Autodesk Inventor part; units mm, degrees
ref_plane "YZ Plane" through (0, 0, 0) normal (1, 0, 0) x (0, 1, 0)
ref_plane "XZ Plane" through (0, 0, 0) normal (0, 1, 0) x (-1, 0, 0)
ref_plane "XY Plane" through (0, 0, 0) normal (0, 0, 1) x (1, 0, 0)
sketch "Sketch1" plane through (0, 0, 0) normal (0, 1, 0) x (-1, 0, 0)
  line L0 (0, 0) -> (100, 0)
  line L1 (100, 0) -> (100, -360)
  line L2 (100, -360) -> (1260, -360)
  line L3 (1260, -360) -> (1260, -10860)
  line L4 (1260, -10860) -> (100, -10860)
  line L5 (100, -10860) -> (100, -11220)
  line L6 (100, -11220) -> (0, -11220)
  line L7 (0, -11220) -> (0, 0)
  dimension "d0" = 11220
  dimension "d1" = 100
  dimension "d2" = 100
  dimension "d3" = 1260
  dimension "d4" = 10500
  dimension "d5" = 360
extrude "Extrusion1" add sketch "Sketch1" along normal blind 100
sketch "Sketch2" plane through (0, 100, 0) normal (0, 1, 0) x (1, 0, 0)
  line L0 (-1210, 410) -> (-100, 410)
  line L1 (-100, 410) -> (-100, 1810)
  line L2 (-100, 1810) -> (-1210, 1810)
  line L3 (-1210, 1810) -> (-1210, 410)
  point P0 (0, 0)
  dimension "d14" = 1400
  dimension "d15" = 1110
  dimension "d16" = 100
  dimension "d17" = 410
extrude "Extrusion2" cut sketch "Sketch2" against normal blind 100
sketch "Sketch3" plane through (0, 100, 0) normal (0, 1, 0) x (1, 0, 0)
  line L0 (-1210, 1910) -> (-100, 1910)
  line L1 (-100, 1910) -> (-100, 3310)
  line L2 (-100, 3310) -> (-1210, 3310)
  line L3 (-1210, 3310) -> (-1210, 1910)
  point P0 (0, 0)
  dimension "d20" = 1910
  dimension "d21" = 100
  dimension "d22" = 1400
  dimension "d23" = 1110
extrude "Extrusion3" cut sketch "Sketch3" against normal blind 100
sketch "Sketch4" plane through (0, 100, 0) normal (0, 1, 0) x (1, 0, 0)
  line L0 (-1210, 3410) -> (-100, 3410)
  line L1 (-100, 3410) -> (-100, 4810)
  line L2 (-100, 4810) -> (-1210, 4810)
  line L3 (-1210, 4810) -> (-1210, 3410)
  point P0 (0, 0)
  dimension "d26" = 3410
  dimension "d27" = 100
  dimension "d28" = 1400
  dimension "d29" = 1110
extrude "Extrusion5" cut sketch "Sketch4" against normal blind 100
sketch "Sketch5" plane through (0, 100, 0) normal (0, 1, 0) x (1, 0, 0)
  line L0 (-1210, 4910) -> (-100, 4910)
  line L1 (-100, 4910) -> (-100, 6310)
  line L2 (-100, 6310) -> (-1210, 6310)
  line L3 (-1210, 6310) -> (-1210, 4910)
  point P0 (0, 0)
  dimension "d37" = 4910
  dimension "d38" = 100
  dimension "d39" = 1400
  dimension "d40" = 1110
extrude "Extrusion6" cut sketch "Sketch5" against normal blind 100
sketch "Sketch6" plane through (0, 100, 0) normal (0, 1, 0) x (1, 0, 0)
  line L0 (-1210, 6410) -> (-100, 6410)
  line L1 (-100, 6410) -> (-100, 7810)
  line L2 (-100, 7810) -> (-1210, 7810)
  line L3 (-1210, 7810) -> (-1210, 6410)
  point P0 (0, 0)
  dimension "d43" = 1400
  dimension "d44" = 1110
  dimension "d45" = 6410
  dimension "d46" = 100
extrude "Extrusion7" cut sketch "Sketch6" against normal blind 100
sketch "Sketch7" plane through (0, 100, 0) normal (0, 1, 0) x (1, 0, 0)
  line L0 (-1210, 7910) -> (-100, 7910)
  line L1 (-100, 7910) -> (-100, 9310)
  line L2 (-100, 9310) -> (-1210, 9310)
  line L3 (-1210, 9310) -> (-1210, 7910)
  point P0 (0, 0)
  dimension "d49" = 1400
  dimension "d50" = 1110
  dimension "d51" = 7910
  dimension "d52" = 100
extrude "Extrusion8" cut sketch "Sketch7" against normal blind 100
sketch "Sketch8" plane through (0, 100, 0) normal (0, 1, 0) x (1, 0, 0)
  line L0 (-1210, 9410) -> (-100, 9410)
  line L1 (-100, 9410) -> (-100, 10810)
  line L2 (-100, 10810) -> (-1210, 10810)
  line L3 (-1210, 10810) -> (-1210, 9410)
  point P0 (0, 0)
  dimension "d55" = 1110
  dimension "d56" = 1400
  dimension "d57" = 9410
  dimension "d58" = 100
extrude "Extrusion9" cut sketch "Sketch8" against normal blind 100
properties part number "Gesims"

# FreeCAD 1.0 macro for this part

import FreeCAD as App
import Part
import Sketcher
Q = App.Units.Quantity

doc = App.newDocument("Part")
params = doc.addObject("Spreadsheet::Sheet", "Params")
for row, (alias, value) in enumerate([
    ("sketch1_width", "100 mm"),
    ("sketch1_height", "11220 mm"),
    ("sketch1_height2", "360 mm"),
    ("pad1_length", "100 mm"),
    ("sketch2_width", "1110 mm"),
    ("sketch2_height", "1400 mm"),
    ("pocket1_length", "100 mm"),
    ("sketch3_width", "1110 mm"),
    ("sketch3_height", "1400 mm"),
    ("pocket2_length", "100 mm"),
    ("sketch4_width", "1110 mm"),
    ("sketch4_height", "1400 mm"),
    ("pocket3_length", "100 mm"),
    ("sketch5_width", "1110 mm"),
    ("sketch5_height", "1400 mm"),
    ("pocket4_length", "100 mm"),
    ("sketch6_width", "1110 mm"),
    ("sketch6_height", "1400 mm"),
    ("pocket5_length", "100 mm"),
    ("sketch7_width", "1110 mm"),
    ("sketch7_height", "1400 mm"),
    ("pocket6_length", "100 mm"),
    ("sketch8_width", "1110 mm"),
    ("sketch8_height", "1400 mm"),
    ("pocket7_length", "100 mm"),
], start=1):
    params.set(f"A{row}", alias)
    params.set(f"B{row}", "=" + value)
    params.setAlias(f"B{row}", alias)

body = doc.addObject("PartDesign::Body", "Body")

sketch1 = body.newObject("Sketcher::SketchObject", "Sketch")
sketch1.AttachmentSupport = (doc.getObject("XZ_Plane"), [""])
sketch1.MapMode = "FlatFace"
sketch1.addGeometry([
    Part.LineSegment(App.Vector(-100, 0, 0), App.Vector(0, 0, 0)),
    Part.LineSegment(App.Vector(0, 0, 0), App.Vector(0, -11220, 0)),
    Part.LineSegment(App.Vector(0, -11220, 0), App.Vector(-100, -11220, 0)),
    Part.LineSegment(App.Vector(-100, -11220, 0), App.Vector(-100, -10860, 0)),
    Part.LineSegment(App.Vector(-100, -10860, 0), App.Vector(-1260, -10860, 0)),
    Part.LineSegment(App.Vector(-1260, -10860, 0), App.Vector(-1260, -360, 0)),
    Part.LineSegment(App.Vector(-1260, -360, 0), App.Vector(-100, -360, 0)),
    Part.LineSegment(App.Vector(-100, -360, 0), App.Vector(-100, 0, 0)),
], False)
sketch1.addConstraint([
    Sketcher.Constraint("Coincident", 0, 2, 1, 1),
    Sketcher.Constraint("Coincident", 1, 2, 2, 1),
    Sketcher.Constraint("Coincident", 2, 2, 3, 1),
    Sketcher.Constraint("Coincident", 3, 2, 4, 1),
    Sketcher.Constraint("Coincident", 4, 2, 5, 1),
    Sketcher.Constraint("Coincident", 5, 2, 6, 1),
    Sketcher.Constraint("Coincident", 6, 2, 7, 1),
    Sketcher.Constraint("Coincident", 7, 2, 0, 1),
    Sketcher.Constraint("Horizontal", 0),
    Sketcher.Constraint("Vertical", 1),
    Sketcher.Constraint("Horizontal", 2),
    Sketcher.Constraint("Vertical", 3),
    Sketcher.Constraint("Horizontal", 4),
    Sketcher.Constraint("Vertical", 5),
    Sketcher.Constraint("Horizontal", 6),
    Sketcher.Constraint("Vertical", 7),
    Sketcher.Constraint("Coincident", 0, 2, -1, 1),
    Sketcher.Constraint("Vertical", 3, 2, 6, 2),
    Sketcher.Constraint("Equal", 3, 7),
    Sketcher.Constraint("DistanceX", 0, 1, 0, 2, Q("100 mm")),
    Sketcher.Constraint("DistanceY", 1, 2, 1, 1, Q("11220 mm")),
    Sketcher.Constraint("DistanceY", 3, 1, 3, 2, Q("360 mm")),
    Sketcher.Constraint("DistanceX", 4, 2, -1, 1, Q("1260 mm")),
])
sketch1.setExpression("Constraints[19]", "Params.sketch1_width")
sketch1.setExpression("Constraints[20]", "Params.sketch1_height")
sketch1.setExpression("Constraints[21]", "Params.sketch1_height2")
pad1 = body.newObject("PartDesign::Pad", "Pad")
pad1.Profile = sketch1
pad1.setExpression("Length", "Params.pad1_length")
pad1.Reversed = True

sketch2 = body.newObject("Sketcher::SketchObject", "Sketch001")
sketch2.AttachmentSupport = (doc.getObject("XZ_Plane"), [""])
sketch2.MapMode = "FlatFace"
sketch2.AttachmentOffset = App.Placement(App.Vector(0, 0, -100), App.Rotation())
sketch2.addGeometry([
    Part.LineSegment(App.Vector(-1210, -1810, 0), App.Vector(-1210, -410, 0)),
    Part.LineSegment(App.Vector(-1210, -410, 0), App.Vector(-100, -410, 0)),
    Part.LineSegment(App.Vector(-100, -410, 0), App.Vector(-100, -1810, 0)),
    Part.LineSegment(App.Vector(-100, -1810, 0), App.Vector(-1210, -1810, 0)),
], False)
sketch2.addConstraint([
    Sketcher.Constraint("Coincident", 0, 2, 1, 1),
    Sketcher.Constraint("Coincident", 1, 2, 2, 1),
    Sketcher.Constraint("Coincident", 2, 2, 3, 1),
    Sketcher.Constraint("Coincident", 3, 2, 0, 1),
    Sketcher.Constraint("Vertical", 0),
    Sketcher.Constraint("Horizontal", 1),
    Sketcher.Constraint("Vertical", 2),
    Sketcher.Constraint("Horizontal", 3),
    Sketcher.Constraint("DistanceX", 1, 1, 1, 2, Q("1110 mm")),
    Sketcher.Constraint("DistanceY", 0, 1, 0, 2, Q("1400 mm")),
    Sketcher.Constraint("DistanceY", 0, 2, -1, 1, Q("410 mm")),
    Sketcher.Constraint("DistanceX", 1, 2, -1, 1, Q("100 mm")),
])
sketch2.setExpression("Constraints[8]", "Params.sketch2_width")
sketch2.setExpression("Constraints[9]", "Params.sketch2_height")
pocket1 = body.newObject("PartDesign::Pocket", "Pocket")
pocket1.Profile = sketch2
pocket1.setExpression("Length", "Params.pocket1_length")
pocket1.Reversed = True

sketch3 = body.newObject("Sketcher::SketchObject", "Sketch002")
sketch3.AttachmentSupport = (doc.getObject("XZ_Plane"), [""])
sketch3.MapMode = "FlatFace"
sketch3.AttachmentOffset = App.Placement(App.Vector(0, 0, -100), App.Rotation())
sketch3.addGeometry([
    Part.LineSegment(App.Vector(-1210, -3310, 0), App.Vector(-1210, -1910, 0)),
    Part.LineSegment(App.Vector(-1210, -1910, 0), App.Vector(-100, -1910, 0)),
    Part.LineSegment(App.Vector(-100, -1910, 0), App.Vector(-100, -3310, 0)),
    Part.LineSegment(App.Vector(-100, -3310, 0), App.Vector(-1210, -3310, 0)),
], False)
sketch3.addConstraint([
    Sketcher.Constraint("Coincident", 0, 2, 1, 1),
    Sketcher.Constraint("Coincident", 1, 2, 2, 1),
    Sketcher.Constraint("Coincident", 2, 2, 3, 1),
    Sketcher.Constraint("Coincident", 3, 2, 0, 1),
    Sketcher.Constraint("Vertical", 0),
    Sketcher.Constraint("Horizontal", 1),
    Sketcher.Constraint("Vertical", 2),
    Sketcher.Constraint("Horizontal", 3),
    Sketcher.Constraint("DistanceX", 1, 1, 1, 2, Q("1110 mm")),
    Sketcher.Constraint("DistanceY", 0, 1, 0, 2, Q("1400 mm")),
    Sketcher.Constraint("DistanceY", 0, 2, -1, 1, Q("1910 mm")),
    Sketcher.Constraint("DistanceX", 1, 2, -1, 1, Q("100 mm")),
])
sketch3.setExpression("Constraints[8]", "Params.sketch3_width")
sketch3.setExpression("Constraints[9]", "Params.sketch3_height")
pocket2 = body.newObject("PartDesign::Pocket", "Pocket001")
pocket2.Profile = sketch3
pocket2.setExpression("Length", "Params.pocket2_length")
pocket2.Reversed = True

sketch4 = body.newObject("Sketcher::SketchObject", "Sketch003")
sketch4.AttachmentSupport = (doc.getObject("XZ_Plane"), [""])
sketch4.MapMode = "FlatFace"
sketch4.AttachmentOffset = App.Placement(App.Vector(0, 0, -100), App.Rotation())
sketch4.addGeometry([
    Part.LineSegment(App.Vector(-1210, -4810, 0), App.Vector(-1210, -3410, 0)),
    Part.LineSegment(App.Vector(-1210, -3410, 0), App.Vector(-100, -3410, 0)),
    Part.LineSegment(App.Vector(-100, -3410, 0), App.Vector(-100, -4810, 0)),
    Part.LineSegment(App.Vector(-100, -4810, 0), App.Vector(-1210, -4810, 0)),
], False)
sketch4.addConstraint([
    Sketcher.Constraint("Coincident", 0, 2, 1, 1),
    Sketcher.Constraint("Coincident", 1, 2, 2, 1),
    Sketcher.Constraint("Coincident", 2, 2, 3, 1),
    Sketcher.Constraint("Coincident", 3, 2, 0, 1),
    Sketcher.Constraint("Vertical", 0),
    Sketcher.Constraint("Horizontal", 1),
    Sketcher.Constraint("Vertical", 2),
    Sketcher.Constraint("Horizontal", 3),
    Sketcher.Constraint("DistanceX", 1, 1, 1, 2, Q("1110 mm")),
    Sketcher.Constraint("DistanceY", 0, 1, 0, 2, Q("1400 mm")),
    Sketcher.Constraint("DistanceY", 0, 2, -1, 1, Q("3410 mm")),
    Sketcher.Constraint("DistanceX", 1, 2, -1, 1, Q("100 mm")),
])
sketch4.setExpression("Constraints[8]", "Params.sketch4_width")
sketch4.setExpression("Constraints[9]", "Params.sketch4_height")
pocket3 = body.newObject("PartDesign::Pocket", "Pocket002")
pocket3.Profile = sketch4
pocket3.setExpression("Length", "Params.pocket3_length")
pocket3.Reversed = True

sketch5 = body.newObject("Sketcher::SketchObject", "Sketch004")
sketch5.AttachmentSupport = (doc.getObject("XZ_Plane"), [""])
sketch5.MapMode = "FlatFace"
sketch5.AttachmentOffset = App.Placement(App.Vector(0, 0, -100), App.Rotation())
sketch5.addGeometry([
    Part.LineSegment(App.Vector(-1210, -6310, 0), App.Vector(-1210, -4910, 0)),
    Part.LineSegment(App.Vector(-1210, -4910, 0), App.Vector(-100, -4910, 0)),
    Part.LineSegment(App.Vector(-100, -4910, 0), App.Vector(-100, -6310, 0)),
    Part.LineSegment(App.Vector(-100, -6310, 0), App.Vector(-1210, -6310, 0)),
], False)
sketch5.addConstraint([
    Sketcher.Constraint("Coincident", 0, 2, 1, 1),
    Sketcher.Constraint("Coincident", 1, 2, 2, 1),
    Sketcher.Constraint("Coincident", 2, 2, 3, 1),
    Sketcher.Constraint("Coincident", 3, 2, 0, 1),
    Sketcher.Constraint("Vertical", 0),
    Sketcher.Constraint("Horizontal", 1),
    Sketcher.Constraint("Vertical", 2),
    Sketcher.Constraint("Horizontal", 3),
    Sketcher.Constraint("DistanceX", 1, 1, 1, 2, Q("1110 mm")),
    Sketcher.Constraint("DistanceY", 0, 1, 0, 2, Q("1400 mm")),
    Sketcher.Constraint("DistanceY", 0, 2, -1, 1, Q("4910 mm")),
    Sketcher.Constraint("DistanceX", 1, 2, -1, 1, Q("100 mm")),
])
sketch5.setExpression("Constraints[8]", "Params.sketch5_width")
sketch5.setExpression("Constraints[9]", "Params.sketch5_height")
pocket4 = body.newObject("PartDesign::Pocket", "Pocket003")
pocket4.Profile = sketch5
pocket4.setExpression("Length", "Params.pocket4_length")
pocket4.Reversed = True

sketch6 = body.newObject("Sketcher::SketchObject", "Sketch005")
sketch6.AttachmentSupport = (doc.getObject("XZ_Plane"), [""])
sketch6.MapMode = "FlatFace"
sketch6.AttachmentOffset = App.Placement(App.Vector(0, 0, -100), App.Rotation())
sketch6.addGeometry([
    Part.LineSegment(App.Vector(-1210, -7810, 0), App.Vector(-1210, -6410, 0)),
    Part.LineSegment(App.Vector(-1210, -6410, 0), App.Vector(-100, -6410, 0)),
    Part.LineSegment(App.Vector(-100, -6410, 0), App.Vector(-100, -7810, 0)),
    Part.LineSegment(App.Vector(-100, -7810, 0), App.Vector(-1210, -7810, 0)),
], False)
sketch6.addConstraint([
    Sketcher.Constraint("Coincident", 0, 2, 1, 1),
    Sketcher.Constraint("Coincident", 1, 2, 2, 1),
    Sketcher.Constraint("Coincident", 2, 2, 3, 1),
    Sketcher.Constraint("Coincident", 3, 2, 0, 1),
    Sketcher.Constraint("Vertical", 0),
    Sketcher.Constraint("Horizontal", 1),
    Sketcher.Constraint("Vertical", 2),
    Sketcher.Constraint("Horizontal", 3),
    Sketcher.Constraint("DistanceX", 1, 1, 1, 2, Q("1110 mm")),
    Sketcher.Constraint("DistanceY", 0, 1, 0, 2, Q("1400 mm")),
    Sketcher.Constraint("DistanceY", 0, 2, -1, 1, Q("6410 mm")),
    Sketcher.Constraint("DistanceX", 1, 2, -1, 1, Q("100 mm")),
])
sketch6.setExpression("Constraints[8]", "Params.sketch6_width")
sketch6.setExpression("Constraints[9]", "Params.sketch6_height")
pocket5 = body.newObject("PartDesign::Pocket", "Pocket004")
pocket5.Profile = sketch6
pocket5.setExpression("Length", "Params.pocket5_length")
pocket5.Reversed = True

sketch7 = body.newObject("Sketcher::SketchObject", "Sketch006")
sketch7.AttachmentSupport = (doc.getObject("XZ_Plane"), [""])
sketch7.MapMode = "FlatFace"
sketch7.AttachmentOffset = App.Placement(App.Vector(0, 0, -100), App.Rotation())
sketch7.addGeometry([
    Part.LineSegment(App.Vector(-1210, -9310, 0), App.Vector(-1210, -7910, 0)),
    Part.LineSegment(App.Vector(-1210, -7910, 0), App.Vector(-100, -7910, 0)),
    Part.LineSegment(App.Vector(-100, -7910, 0), App.Vector(-100, -9310, 0)),
    Part.LineSegment(App.Vector(-100, -9310, 0), App.Vector(-1210, -9310, 0)),
], False)
sketch7.addConstraint([
    Sketcher.Constraint("Coincident", 0, 2, 1, 1),
    Sketcher.Constraint("Coincident", 1, 2, 2, 1),
    Sketcher.Constraint("Coincident", 2, 2, 3, 1),
    Sketcher.Constraint("Coincident", 3, 2, 0, 1),
    Sketcher.Constraint("Vertical", 0),
    Sketcher.Constraint("Horizontal", 1),
    Sketcher.Constraint("Vertical", 2),
    Sketcher.Constraint("Horizontal", 3),
    Sketcher.Constraint("DistanceX", 1, 1, 1, 2, Q("1110 mm")),
    Sketcher.Constraint("DistanceY", 0, 1, 0, 2, Q("1400 mm")),
    Sketcher.Constraint("DistanceY", 0, 2, -1, 1, Q("7910 mm")),
    Sketcher.Constraint("DistanceX", 1, 2, -1, 1, Q("100 mm")),
])
sketch7.setExpression("Constraints[8]", "Params.sketch7_width")
sketch7.setExpression("Constraints[9]", "Params.sketch7_height")
pocket6 = body.newObject("PartDesign::Pocket", "Pocket005")
pocket6.Profile = sketch7
pocket6.setExpression("Length", "Params.pocket6_length")
pocket6.Reversed = True

sketch8 = body.newObject("Sketcher::SketchObject", "Sketch007")
sketch8.AttachmentSupport = (doc.getObject("XZ_Plane"), [""])
sketch8.MapMode = "FlatFace"
sketch8.AttachmentOffset = App.Placement(App.Vector(0, 0, -100), App.Rotation())
sketch8.addGeometry([
    Part.LineSegment(App.Vector(-1210, -10810, 0), App.Vector(-1210, -9410, 0)),
    Part.LineSegment(App.Vector(-1210, -9410, 0), App.Vector(-100, -9410, 0)),
    Part.LineSegment(App.Vector(-100, -9410, 0), App.Vector(-100, -10810, 0)),
    Part.LineSegment(App.Vector(-100, -10810, 0), App.Vector(-1210, -10810, 0)),
], False)
sketch8.addConstraint([
    Sketcher.Constraint("Coincident", 0, 2, 1, 1),
    Sketcher.Constraint("Coincident", 1, 2, 2, 1),
    Sketcher.Constraint("Coincident", 2, 2, 3, 1),
    Sketcher.Constraint("Coincident", 3, 2, 0, 1),
    Sketcher.Constraint("Vertical", 0),
    Sketcher.Constraint("Horizontal", 1),
    Sketcher.Constraint("Vertical", 2),
    Sketcher.Constraint("Horizontal", 3),
    Sketcher.Constraint("DistanceX", 1, 1, 1, 2, Q("1110 mm")),
    Sketcher.Constraint("DistanceY", 0, 1, 0, 2, Q("1400 mm")),
    Sketcher.Constraint("DistanceY", 0, 2, -1, 1, Q("9410 mm")),
    Sketcher.Constraint("DistanceX", 1, 2, -1, 1, Q("100 mm")),
])
sketch8.setExpression("Constraints[8]", "Params.sketch8_width")
sketch8.setExpression("Constraints[9]", "Params.sketch8_height")
pocket7 = body.newObject("PartDesign::Pocket", "Pocket006")
pocket7.Profile = sketch8
pocket7.setExpression("Length", "Params.pocket7_length")
pocket7.Reversed = True

doc.recompute()
